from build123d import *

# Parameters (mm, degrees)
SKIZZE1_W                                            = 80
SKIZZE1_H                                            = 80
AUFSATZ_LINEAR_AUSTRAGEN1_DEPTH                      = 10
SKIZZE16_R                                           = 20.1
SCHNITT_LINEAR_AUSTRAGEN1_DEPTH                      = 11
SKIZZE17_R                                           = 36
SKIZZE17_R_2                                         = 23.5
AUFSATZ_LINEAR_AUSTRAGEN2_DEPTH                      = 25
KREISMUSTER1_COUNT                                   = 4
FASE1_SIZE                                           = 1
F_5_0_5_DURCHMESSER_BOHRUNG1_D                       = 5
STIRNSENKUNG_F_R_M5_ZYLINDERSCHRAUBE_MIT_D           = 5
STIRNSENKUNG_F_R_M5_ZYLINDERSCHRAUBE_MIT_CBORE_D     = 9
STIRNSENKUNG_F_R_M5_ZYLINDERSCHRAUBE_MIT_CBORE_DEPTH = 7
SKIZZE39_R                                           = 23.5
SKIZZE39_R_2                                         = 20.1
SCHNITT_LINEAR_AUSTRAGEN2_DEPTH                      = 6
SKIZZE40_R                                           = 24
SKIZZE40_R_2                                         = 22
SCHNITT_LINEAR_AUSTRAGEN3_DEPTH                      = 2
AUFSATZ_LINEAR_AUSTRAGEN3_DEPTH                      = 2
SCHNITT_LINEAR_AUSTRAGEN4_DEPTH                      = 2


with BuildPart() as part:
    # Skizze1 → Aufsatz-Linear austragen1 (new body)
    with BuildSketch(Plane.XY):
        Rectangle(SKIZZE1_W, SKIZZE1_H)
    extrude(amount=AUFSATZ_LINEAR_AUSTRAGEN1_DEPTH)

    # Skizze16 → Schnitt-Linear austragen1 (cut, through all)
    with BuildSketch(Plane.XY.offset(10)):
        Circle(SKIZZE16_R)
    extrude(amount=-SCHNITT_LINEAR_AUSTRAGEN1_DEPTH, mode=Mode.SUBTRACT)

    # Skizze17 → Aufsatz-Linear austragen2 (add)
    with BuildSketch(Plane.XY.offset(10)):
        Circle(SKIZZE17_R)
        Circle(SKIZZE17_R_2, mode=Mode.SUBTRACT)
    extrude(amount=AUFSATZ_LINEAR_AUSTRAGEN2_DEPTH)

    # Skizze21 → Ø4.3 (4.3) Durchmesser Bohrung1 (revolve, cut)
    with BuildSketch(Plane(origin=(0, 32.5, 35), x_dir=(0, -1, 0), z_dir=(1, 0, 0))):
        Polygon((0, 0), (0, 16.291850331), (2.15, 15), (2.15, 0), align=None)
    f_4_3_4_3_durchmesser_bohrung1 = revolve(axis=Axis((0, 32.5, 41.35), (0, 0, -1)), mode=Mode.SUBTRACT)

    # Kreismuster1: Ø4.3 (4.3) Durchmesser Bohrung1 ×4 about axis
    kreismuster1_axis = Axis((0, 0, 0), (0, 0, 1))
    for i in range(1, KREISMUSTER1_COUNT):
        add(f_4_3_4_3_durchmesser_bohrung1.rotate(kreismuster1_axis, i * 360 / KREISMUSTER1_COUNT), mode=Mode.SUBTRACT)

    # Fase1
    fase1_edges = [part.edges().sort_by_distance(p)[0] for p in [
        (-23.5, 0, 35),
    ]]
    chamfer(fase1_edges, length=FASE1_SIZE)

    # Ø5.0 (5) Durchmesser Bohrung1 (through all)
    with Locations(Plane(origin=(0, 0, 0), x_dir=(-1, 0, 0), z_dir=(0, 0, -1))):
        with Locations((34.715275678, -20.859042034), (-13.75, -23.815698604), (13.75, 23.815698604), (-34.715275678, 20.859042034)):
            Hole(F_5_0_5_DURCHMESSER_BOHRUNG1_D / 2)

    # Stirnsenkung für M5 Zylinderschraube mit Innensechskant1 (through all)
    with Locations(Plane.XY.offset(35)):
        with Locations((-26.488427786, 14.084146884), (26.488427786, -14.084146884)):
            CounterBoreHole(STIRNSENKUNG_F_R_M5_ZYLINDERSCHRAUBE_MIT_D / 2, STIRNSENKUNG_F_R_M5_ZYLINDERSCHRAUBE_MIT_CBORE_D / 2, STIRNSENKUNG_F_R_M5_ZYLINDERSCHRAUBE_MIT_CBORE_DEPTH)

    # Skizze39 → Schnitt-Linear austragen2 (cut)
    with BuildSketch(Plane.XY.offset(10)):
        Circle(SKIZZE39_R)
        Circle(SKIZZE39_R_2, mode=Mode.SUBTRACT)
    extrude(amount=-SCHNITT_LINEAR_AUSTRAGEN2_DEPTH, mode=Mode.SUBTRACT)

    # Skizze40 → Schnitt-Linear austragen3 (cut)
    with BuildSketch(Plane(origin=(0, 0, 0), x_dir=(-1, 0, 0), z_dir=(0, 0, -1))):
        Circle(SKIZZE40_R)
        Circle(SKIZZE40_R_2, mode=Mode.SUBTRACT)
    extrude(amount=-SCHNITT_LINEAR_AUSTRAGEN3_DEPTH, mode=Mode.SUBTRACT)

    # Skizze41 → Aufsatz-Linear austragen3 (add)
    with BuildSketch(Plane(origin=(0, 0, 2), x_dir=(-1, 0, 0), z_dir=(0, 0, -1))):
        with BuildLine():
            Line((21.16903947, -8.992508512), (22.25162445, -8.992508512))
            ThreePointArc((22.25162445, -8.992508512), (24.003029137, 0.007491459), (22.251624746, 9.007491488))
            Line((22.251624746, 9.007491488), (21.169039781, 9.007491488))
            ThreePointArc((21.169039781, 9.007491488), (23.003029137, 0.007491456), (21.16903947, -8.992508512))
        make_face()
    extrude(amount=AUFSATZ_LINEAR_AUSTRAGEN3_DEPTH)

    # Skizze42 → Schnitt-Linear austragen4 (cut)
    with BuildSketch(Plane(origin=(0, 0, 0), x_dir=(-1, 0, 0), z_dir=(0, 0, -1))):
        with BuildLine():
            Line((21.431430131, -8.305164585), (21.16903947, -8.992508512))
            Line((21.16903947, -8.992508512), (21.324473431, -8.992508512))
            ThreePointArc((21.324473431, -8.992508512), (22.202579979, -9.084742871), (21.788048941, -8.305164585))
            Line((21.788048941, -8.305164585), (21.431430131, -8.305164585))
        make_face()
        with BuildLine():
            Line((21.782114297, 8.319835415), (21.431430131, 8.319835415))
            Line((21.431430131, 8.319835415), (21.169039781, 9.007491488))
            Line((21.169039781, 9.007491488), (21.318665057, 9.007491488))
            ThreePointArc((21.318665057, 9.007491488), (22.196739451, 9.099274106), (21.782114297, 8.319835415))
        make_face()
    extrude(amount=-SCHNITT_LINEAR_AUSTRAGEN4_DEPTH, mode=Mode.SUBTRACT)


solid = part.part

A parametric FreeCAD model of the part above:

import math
import FreeCAD as App
import Part
import Sketcher
Q = App.Units.Quantity


def edges_at(feature, points):
    """Names of the edges that pass closest to the given points."""
    edges = feature.Shape.Edges
    near = lambda p: min(range(len(edges)), key=lambda i: edges[i].distToShape(Part.Vertex(*p))[0])
    return sorted({f"Edge{near(p) + 1}" for p in points})

doc = App.newDocument("Part")
params = doc.addObject("Spreadsheet::Sheet", "Params")
for row, (alias, value) in enumerate([
    ("sketch1_width", "80 mm"),
    ("pad1_length", "10 mm"),
    ("sketch2_diameter", "40.2 mm"),
    ("sketch3_diameter", "72 mm"),
    ("sketch3_diameter2", "47 mm"),
    ("pad2_length", "25 mm"),
    ("sketch4_height", "15 mm"),
    ("sketch4_width", "2.15 mm"),
    ("groove_angle", "360 deg"),
    ("chamfer_size", "1 mm"),
    ("sketch5_diameter", "5 mm"),
    ("hole_diameter", "5 mm"),
    ("sketch6_diameter", "5 mm"),
    ("hole2_diameter", "5 mm"),
    ("hole2_cbore_diameter", "9 mm"),
    ("hole2_cbore_depth", "7 mm"),
    ("sketch7_diameter", "47 mm"),
    ("sketch7_diameter2", "40.2 mm"),
    ("pocket2_length", "6 mm"),
    ("sketch8_diameter", "48 mm"),
    ("sketch8_diameter2", "44 mm"),
    ("pocket3_length", "2 mm"),
    ("sketch9_radius", "24 mm"),
    ("sketch9_radius2", "23 mm"),
    ("pad3_length", "2 mm"),
    ("sketch10_radius", "0.5 mm"),
    ("pocket4_length", "2 mm"),
], start=1):
    params.set(f"A{row}", alias)
    params.set(f"B{row}", "=" + value)
    params.setAlias(f"B{row}", alias)

body = doc.addObject("PartDesign::Body", "Body")

# Sketch on XY plane
sketch1 = doc.addObject("Sketcher::SketchObject", "Sketch")
body.addObject(sketch1)
sketch1.AttachmentSupport = (doc.XY_Plane, [""])
sketch1.MapMode = "FlatFace"
sketch1.addGeometry([
    Part.LineSegment(App.Vector(-40, 40, 0), App.Vector(-40, -40, 0)),
    Part.LineSegment(App.Vector(-40, -40, 0), App.Vector(40, -40, 0)),
    Part.LineSegment(App.Vector(40, -40, 0), App.Vector(40, 40, 0)),
    Part.LineSegment(App.Vector(40, 40, 0), App.Vector(-40, 40, 0)),
], False)
sketch1.addConstraint([
    Sketcher.Constraint("Coincident", 0, 2, 1, 1),
    Sketcher.Constraint("Coincident", 1, 2, 2, 1),
    Sketcher.Constraint("Coincident", 2, 2, 3, 1),
    Sketcher.Constraint("Coincident", 3, 2, 0, 1),
    Sketcher.Constraint("Vertical", 0),
    Sketcher.Constraint("Horizontal", 1),
    Sketcher.Constraint("Vertical", 2),
    Sketcher.Constraint("Horizontal", 3),
    Sketcher.Constraint("Symmetric", 0, 2, 2, 2, -1, 1),
    Sketcher.Constraint("Equal", 3, 0),
    Sketcher.Constraint("DistanceX", 1, 1, 1, 2, 80.0),
])
sketch1.setExpression("Constraints[10]", "Params.sketch1_width")
pad1 = doc.addObject("PartDesign::Pad", "Pad")
body.addObject(pad1)
pad1.Profile = sketch1
pad1.setExpression("Length", "Params.pad1_length")

# Sketch on XY plane
sketch2 = doc.addObject("Sketcher::SketchObject", "Sketch001")
body.addObject(sketch2)
sketch2.AttachmentSupport = (doc.XY_Plane, [""])
sketch2.MapMode = "FlatFace"
sketch2.AttachmentOffset = App.Placement(App.Vector(0, 0, 10), App.Rotation())
sketch2.addGeometry(Part.Circle(App.Vector(0, 0, 0), App.Vector(0, 0, 1), 20), False)
sketch2.addConstraint([
    Sketcher.Constraint("Coincident", 0, 3, -1, 1),
    Sketcher.Constraint("Diameter", 0, 40.2),
])
sketch2.setExpression("Constraints[1]", "Params.sketch2_diameter")
pocket1 = doc.addObject("PartDesign::Pocket", "Pocket")
body.addObject(pocket1)
pocket1.Profile = sketch2
pocket1.Type = "ThroughAll"

# Sketch on XY plane
sketch3 = doc.addObject("Sketcher::SketchObject", "Sketch002")
body.addObject(sketch3)
sketch3.AttachmentSupport = (doc.XY_Plane, [""])
sketch3.MapMode = "FlatFace"
sketch3.AttachmentOffset = App.Placement(App.Vector(0, 0, 10), App.Rotation())
sketch3.addGeometry([
    Part.Circle(App.Vector(0, 0, 0), App.Vector(0, 0, 1), 36),
    Part.Circle(App.Vector(0, 0, 0), App.Vector(0, 0, 1), 24),
], False)
sketch3.addConstraint([
    Sketcher.Constraint("Coincident", 0, 3, -1, 1),
    Sketcher.Constraint("Coincident", 1, 3, -1, 1),
    Sketcher.Constraint("Diameter", 0, 72.0),
    Sketcher.Constraint("Diameter", 1, 47.0),
])
sketch3.setExpression("Constraints[2]", "Params.sketch3_diameter")
sketch3.setExpression("Constraints[3]", "Params.sketch3_diameter2")
pad2 = doc.addObject("PartDesign::Pad", "Pad001")
body.addObject(pad2)
pad2.Profile = sketch3
pad2.setExpression("Length", "Params.pad2_length")

# Sketch on YZ plane
sketch4 = doc.addObject("Sketcher::SketchObject", "Sketch003")
body.addObject(sketch4)
sketch4.AttachmentSupport = (doc.YZ_Plane, [""])
sketch4.MapMode = "FlatFace"
sketch4.addGeometry([
    Part.LineSegment(App.Vector(32.5, 18.7, 0), App.Vector(32.5, 35, 0)),
    Part.LineSegment(App.Vector(32.5, 35, 0), App.Vector(30.4, 35, 0)),
    Part.LineSegment(App.Vector(30.4, 35, 0), App.Vector(30.4, 20, 0)),
    Part.LineSegment(App.Vector(30.4, 20, 0), App.Vector(32.5, 18.7, 0)),
], False)
sketch4.addGeometry(Part.LineSegment(App.Vector(32.5, 35, 0), App.Vector(32.5, 18.7, 0)), True)  # axis
sketch4.addConstraint([
    Sketcher.Constraint("Coincident", 0, 2, 1, 1),
    Sketcher.Constraint("Coincident", 1, 2, 2, 1),
    Sketcher.Constraint("Coincident", 2, 2, 3, 1),
    Sketcher.Constraint("Coincident", 3, 2, 0, 1),
    Sketcher.Constraint("Vertical", 0),
    Sketcher.Constraint("Horizontal", 1),
    Sketcher.Constraint("Vertical", 2),
    Sketcher.Constraint("Vertical", 4),
    Sketcher.Constraint("Coincident", 4, 1, 0, 2),
    Sketcher.Constraint("Equal", 0, 4),
    Sketcher.Constraint("DistanceY", 2, 2, 2, 1, 15.0),
    Sketcher.Constraint("Angle", 3, Q("-31 deg")),
    Sketcher.Constraint("DistanceY", -1, 1, 0, 2, 35.0),
    Sketcher.Constraint("DistanceX", 1, 2, 1, 1, 2.15),
    Sketcher.Constraint("DistanceX", -1, 1, 0, 2, 32.5),
])
sketch4.setExpression("Constraints[10]", "Params.sketch4_height")
sketch4.setExpression("Constraints[13]", "Params.sketch4_width")
groove = doc.addObject("PartDesign::Groove", "Groove")
body.addObject(groove)
groove.Profile = sketch4
groove.ReferenceAxis = (sketch4, ["Axis0"])
groove.setExpression("Angle", "Params.groove_angle")
doc.recompute()

polarpattern = doc.addObject("PartDesign::PolarPattern", "PolarPattern")
body.addObject(polarpattern)
polarpattern.Originals = [groove]
polarpattern.Axis = (doc.Z_Axis, [""])
polarpattern.Angle = 360
polarpattern.Occurrences = 4
body.Tip = polarpattern
doc.recompute()

chamfer = doc.addObject("PartDesign::Chamfer", "Chamfer")
body.addObject(chamfer)
chamfer.Base = (polarpattern, edges_at(polarpattern, [(-23.5, 0, 35)]))
chamfer.setExpression("Size", "Params.chamfer_size")

# Sketch on XY plane
sketch5 = doc.addObject("Sketcher::SketchObject", "Sketch004")
body.addObject(sketch5)
sketch5.AttachmentSupport = (doc.XY_Plane, [""])
sketch5.MapMode = "FlatFace"
sketch5.addGeometry([
    Part.Circle(App.Vector(-34.7, -20.9, 0), App.Vector(0, 0, 1), 2.5),
    Part.Circle(App.Vector(13.8, -23.8, 0), App.Vector(0, 0, 1), 2.5),
    Part.Circle(App.Vector(-13.8, 23.8, 0), App.Vector(0, 0, 1), 2.5),
    Part.Circle(App.Vector(34.7, 20.9, 0), App.Vector(0, 0, 1), 2.5),
], False)
sketch5.addConstraint([
    Sketcher.Constraint("Equal", 0, 1),
    Sketcher.Constraint("Equal", 1, 2),
    Sketcher.Constraint("Equal", 2, 3),
    Sketcher.Constraint("Symmetric", 1, 3, 2, 3, -1, 1),
    Sketcher.Constraint("Symmetric", 0, 3, 3, 3, -1, 1),
    Sketcher.Constraint("Diameter", 0, 5.0),
    Sketcher.Constraint("DistanceX", 2, 3, 1, 3, 27.5),
    Sketcher.Constraint("DistanceY", 1, 3, -1, 1, 23.815699),
    Sketcher.Constraint("DistanceY", 0, 3, 2, 3, 44.674741),
    Sketcher.Constraint("DistanceX", 0, 3, 3, 3, 69.430551),
])
sketch5.setExpression("Constraints[5]", "Params.sketch5_diameter")
doc.recompute()
hole = doc.addObject("PartDesign::Hole", "Hole")
body.addObject(hole)
hole.Profile = sketch5
hole.ThreadType = "None"
hole.setExpression("Diameter", "Params.hole_diameter")
hole.DepthType = "ThroughAll"
hole.Reversed = True

# Sketch on XY plane
sketch6 = doc.addObject("Sketcher::SketchObject", "Sketch005")
body.addObject(sketch6)
sketch6.AttachmentSupport = (doc.XY_Plane, [""])
sketch6.MapMode = "FlatFace"
sketch6.AttachmentOffset = App.Placement(App.Vector(0, 0, 35), App.Rotation())
sketch6.addGeometry([
    Part.Circle(App.Vector(-26.5, 14.1, 0), App.Vector(0, 0, 1), 2.5),
    Part.Circle(App.Vector(26.5, -14.1, 0), App.Vector(0, 0, 1), 2.5),
], False)
sketch6.addConstraint([
    Sketcher.Constraint("Equal", 0, 1),
    Sketcher.Constraint("Symmetric", 0, 3, 1, 3, -1, 1),
    Sketcher.Constraint("Diameter", 0, 5.0),
    Sketcher.Constraint("DistanceX", 0, 3, -1, 1, 26.488428),
    Sketcher.Constraint("DistanceY", -1, 1, 0, 3, 14.084147),
])
sketch6.setExpression("Constraints[2]", "Params.sketch6_diameter")
doc.recompute()
hole2 = doc.addObject("PartDesign::Hole", "Hole001")
body.addObject(hole2)
hole2.Profile = sketch6
hole2.ThreadType = "None"
hole2.setExpression("Diameter", "Params.hole2_diameter")
hole2.DepthType = "ThroughAll"
hole2.HoleCutType = "Counterbore"
hole2.setExpression("HoleCutDiameter", "Params.hole2_cbore_diameter")
hole2.setExpression("HoleCutDepth", "Params.hole2_cbore_depth")

# Sketch on XY plane
sketch7 = doc.addObject("Sketcher::SketchObject", "Sketch006")
body.addObject(sketch7)
sketch7.AttachmentSupport = (doc.XY_Plane, [""])
sketch7.MapMode = "FlatFace"
sketch7.AttachmentOffset = App.Placement(App.Vector(0, 0, 10), App.Rotation())
sketch7.addGeometry([
    Part.Circle(App.Vector(0, 0, 0), App.Vector(0, 0, 1), 24),
    Part.Circle(App.Vector(0, 0, 0), App.Vector(0, 0, 1), 20),
], False)
sketch7.addConstraint([
    Sketcher.Constraint("Coincident", 0, 3, -1, 1),
    Sketcher.Constraint("Coincident", 1, 3, -1, 1),
    Sketcher.Constraint("Diameter", 0, 47.0),
    Sketcher.Constraint("Diameter", 1, 40.2),
])
sketch7.setExpression("Constraints[2]", "Params.sketch7_diameter")
sketch7.setExpression("Constraints[3]", "Params.sketch7_diameter2")
pocket2 = doc.addObject("PartDesign::Pocket", "Pocket001")
body.addObject(pocket2)
pocket2.Profile = sketch7
pocket2.setExpression("Length", "Params.pocket2_length")

# Sketch on XY plane
sketch8 = doc.addObject("Sketcher::SketchObject", "Sketch007")
body.addObject(sketch8)
sketch8.AttachmentSupport = (doc.XY_Plane, [""])
sketch8.MapMode = "FlatFace"
sketch8.addGeometry([
    Part.Circle(App.Vector(0, 0, 0), App.Vector(0, 0, 1), 24),
    Part.Circle(App.Vector(0, 0, 0), App.Vector(0, 0, 1), 22),
], False)
sketch8.addConstraint([
    Sketcher.Constraint("Coincident", 0, 3, -1, 1),
    Sketcher.Constraint("Coincident", 1, 3, -1, 1),
    Sketcher.Constraint("Diameter", 0, 48.0),
    Sketcher.Constraint("Diameter", 1, 44.0),
])
sketch8.setExpression("Constraints[2]", "Params.sketch8_diameter")
sketch8.setExpression("Constraints[3]", "Params.sketch8_diameter2")
pocket3 = doc.addObject("PartDesign::Pocket", "Pocket002")
body.addObject(pocket3)
pocket3.Profile = sketch8
pocket3.setExpression("Length", "Params.pocket3_length")
pocket3.Reversed = True

# Sketch on XY plane
sketch9 = doc.addObject("Sketcher::SketchObject", "Sketch008")
body.addObject(sketch9)
sketch9.AttachmentSupport = (doc.XY_Plane, [""])
sketch9.MapMode = "FlatFace"
sketch9.AttachmentOffset = App.Placement(App.Vector(0, 0, 2), App.Rotation())
sketch9.addGeometry([
    Part.LineSegment(App.Vector(-21.2, -9, 0), App.Vector(-22.3, -9, 0)),
    Part.ArcOfCircle(Part.Circle(App.Vector(0, 0, 0), App.Vector(0, 0, 1), 24), math.radians(158), math.radians(202)),
    Part.LineSegment(App.Vector(-22.3, 9, 0), App.Vector(-21.2, 9, 0)),
    Part.ArcOfCircle(Part.Circle(App.Vector(0, 0, 0), App.Vector(0, 0, 1), 23), math.radians(157), math.radians(203)),
], False)
sketch9.addConstraint([
    Sketcher.Constraint("Coincident", 0, 2, 1, 2),
    Sketcher.Constraint("Coincident", 1, 1, 2, 1),
    Sketcher.Constraint("Coincident", 2, 2, 3, 1),
    Sketcher.Constraint("Coincident", 3, 2, 0, 1),
    Sketcher.Constraint("Horizontal", 0),
    Sketcher.Constraint("Horizontal", 2),
    Sketcher.Constraint("Coincident", 3, 3, 1, 3),
    Sketcher.Constraint("Vertical", 0, 2, 1, 1),
    Sketcher.Constraint("Radius", 1, 24.0),
    Sketcher.Constraint("Radius", 3, 23.0),
    Sketcher.Constraint("DistanceY", 0, 2, 1, 3, 9.0),
    Sketcher.Constraint("DistanceX", 1, 3, -1, 1, 0.003029),
    Sketcher.Constraint("DistanceY", -1, 1, 1, 3, 0.007492),
])
sketch9.setExpression("Constraints[8]", "Params.sketch9_radius")
sketch9.setExpression("Constraints[9]", "Params.sketch9_radius2")
pad3 = doc.addObject("PartDesign::Pad", "Pad002")
body.addObject(pad3)
pad3.Profile = sketch9
pad3.setExpression("Length", "Params.pad3_length")
pad3.Reversed = True

# Sketch on XY plane
sketch10 = doc.addObject("Sketcher::SketchObject", "Sketch009")
body.addObject(sketch10)
sketch10.AttachmentSupport = (doc.XY_Plane, [""])
sketch10.MapMode = "FlatFace"
sketch10.addGeometry([
    Part.LineSegment(App.Vector(-21.43, -8.31, 0), App.Vector(-21.17, -8.99, 0)),  # 0
    Part.LineSegment(App.Vector(-21.17, -8.99, 0), App.Vector(-21.32, -8.99, 0)),  # 1
    Part.ArcOfCircle(Part.Circle(App.Vector(-21.79, -8.81, 0), App.Vector(0, 0, 1), 0.5), math.radians(90), math.radians(338)),  # 2
    Part.LineSegment(App.Vector(-21.79, -8.31, 0), App.Vector(-21.43, -8.31, 0)),  # 3
    Part.LineSegment(App.Vector(-21.43, 8.32, 0), App.Vector(-21.78, 8.32, 0)),  # 4
    Part.ArcOfCircle(Part.Circle(App.Vector(-21.78, 8.82, 0), App.Vector(0, 0, 1), 0.5), math.radians(22), math.radians(270)),  # 5
    Part.LineSegment(App.Vector(-21.32, 9.01, 0), App.Vector(-21.17, 9.01, 0)),  # 6
    Part.LineSegment(App.Vector(-21.17, 9.01, 0), App.Vector(-21.43, 8.32, 0)),  # 7
], False)
sketch10.addConstraint([
    Sketcher.Constraint("Coincident", 0, 2, 1, 1),
    Sketcher.Constraint("Coincident", 1, 2, 2, 2),
    Sketcher.Constraint("Tangent", 2, 1, 3, 1),
    Sketcher.Constraint("Coincident", 3, 2, 0, 1),
    Sketcher.Constraint("Tangent", 4, 2, 5, 2),
    Sketcher.Constraint("Coincident", 5, 1, 6, 1),
    Sketcher.Constraint("Coincident", 6, 2, 7, 1),
    Sketcher.Constraint("Coincident", 7, 2, 4, 1),
    Sketcher.Constraint("Horizontal", 1),
    Sketcher.Constraint("Horizontal", 3),
    Sketcher.Constraint("Horizontal", 4),
    Sketcher.Constraint("Horizontal", 6),
    Sketcher.Constraint("Equal", 2, 5),
    Sketcher.Constraint("Vertical", 0, 2, 6, 2),
    Sketcher.Constraint("Vertical", 3, 2, 7, 2),
    Sketcher.Constraint("Radius", 2, 0.5),
    Sketcher.Constraint("DistanceY", 2, 3, 5, 3, 17.625),
    Sketcher.Constraint("DistanceX", 3, 1, 3, 2, 0.356619),
    Sketcher.Constraint("DistanceX", 1, 2, 1, 1, 0.155434),
    Sketcher.Constraint("DistanceX", 4, 2, 4, 1, 0.350684),
    Sketcher.Constraint("DistanceX", 6, 1, 6, 2, 0.149625),
    Sketcher.Constraint("DistanceX", 2, 3, -1, 1, 21.788049),
    Sketcher.Constraint("DistanceX", 0, 2, -1, 1, 21.169039),
    Sketcher.Constraint("DistanceY", 0, 2, -1, 1, 8.992509),
])
sketch10.setExpression("Constraints[15]", "Params.sketch10_radius")
pocket4 = doc.addObject("PartDesign::Pocket", "Pocket003")
body.addObject(pocket4)
pocket4.Profile = sketch10
pocket4.setExpression("Length", "Params.pocket4_length")
pocket4.Reversed = True

doc.recompute()
